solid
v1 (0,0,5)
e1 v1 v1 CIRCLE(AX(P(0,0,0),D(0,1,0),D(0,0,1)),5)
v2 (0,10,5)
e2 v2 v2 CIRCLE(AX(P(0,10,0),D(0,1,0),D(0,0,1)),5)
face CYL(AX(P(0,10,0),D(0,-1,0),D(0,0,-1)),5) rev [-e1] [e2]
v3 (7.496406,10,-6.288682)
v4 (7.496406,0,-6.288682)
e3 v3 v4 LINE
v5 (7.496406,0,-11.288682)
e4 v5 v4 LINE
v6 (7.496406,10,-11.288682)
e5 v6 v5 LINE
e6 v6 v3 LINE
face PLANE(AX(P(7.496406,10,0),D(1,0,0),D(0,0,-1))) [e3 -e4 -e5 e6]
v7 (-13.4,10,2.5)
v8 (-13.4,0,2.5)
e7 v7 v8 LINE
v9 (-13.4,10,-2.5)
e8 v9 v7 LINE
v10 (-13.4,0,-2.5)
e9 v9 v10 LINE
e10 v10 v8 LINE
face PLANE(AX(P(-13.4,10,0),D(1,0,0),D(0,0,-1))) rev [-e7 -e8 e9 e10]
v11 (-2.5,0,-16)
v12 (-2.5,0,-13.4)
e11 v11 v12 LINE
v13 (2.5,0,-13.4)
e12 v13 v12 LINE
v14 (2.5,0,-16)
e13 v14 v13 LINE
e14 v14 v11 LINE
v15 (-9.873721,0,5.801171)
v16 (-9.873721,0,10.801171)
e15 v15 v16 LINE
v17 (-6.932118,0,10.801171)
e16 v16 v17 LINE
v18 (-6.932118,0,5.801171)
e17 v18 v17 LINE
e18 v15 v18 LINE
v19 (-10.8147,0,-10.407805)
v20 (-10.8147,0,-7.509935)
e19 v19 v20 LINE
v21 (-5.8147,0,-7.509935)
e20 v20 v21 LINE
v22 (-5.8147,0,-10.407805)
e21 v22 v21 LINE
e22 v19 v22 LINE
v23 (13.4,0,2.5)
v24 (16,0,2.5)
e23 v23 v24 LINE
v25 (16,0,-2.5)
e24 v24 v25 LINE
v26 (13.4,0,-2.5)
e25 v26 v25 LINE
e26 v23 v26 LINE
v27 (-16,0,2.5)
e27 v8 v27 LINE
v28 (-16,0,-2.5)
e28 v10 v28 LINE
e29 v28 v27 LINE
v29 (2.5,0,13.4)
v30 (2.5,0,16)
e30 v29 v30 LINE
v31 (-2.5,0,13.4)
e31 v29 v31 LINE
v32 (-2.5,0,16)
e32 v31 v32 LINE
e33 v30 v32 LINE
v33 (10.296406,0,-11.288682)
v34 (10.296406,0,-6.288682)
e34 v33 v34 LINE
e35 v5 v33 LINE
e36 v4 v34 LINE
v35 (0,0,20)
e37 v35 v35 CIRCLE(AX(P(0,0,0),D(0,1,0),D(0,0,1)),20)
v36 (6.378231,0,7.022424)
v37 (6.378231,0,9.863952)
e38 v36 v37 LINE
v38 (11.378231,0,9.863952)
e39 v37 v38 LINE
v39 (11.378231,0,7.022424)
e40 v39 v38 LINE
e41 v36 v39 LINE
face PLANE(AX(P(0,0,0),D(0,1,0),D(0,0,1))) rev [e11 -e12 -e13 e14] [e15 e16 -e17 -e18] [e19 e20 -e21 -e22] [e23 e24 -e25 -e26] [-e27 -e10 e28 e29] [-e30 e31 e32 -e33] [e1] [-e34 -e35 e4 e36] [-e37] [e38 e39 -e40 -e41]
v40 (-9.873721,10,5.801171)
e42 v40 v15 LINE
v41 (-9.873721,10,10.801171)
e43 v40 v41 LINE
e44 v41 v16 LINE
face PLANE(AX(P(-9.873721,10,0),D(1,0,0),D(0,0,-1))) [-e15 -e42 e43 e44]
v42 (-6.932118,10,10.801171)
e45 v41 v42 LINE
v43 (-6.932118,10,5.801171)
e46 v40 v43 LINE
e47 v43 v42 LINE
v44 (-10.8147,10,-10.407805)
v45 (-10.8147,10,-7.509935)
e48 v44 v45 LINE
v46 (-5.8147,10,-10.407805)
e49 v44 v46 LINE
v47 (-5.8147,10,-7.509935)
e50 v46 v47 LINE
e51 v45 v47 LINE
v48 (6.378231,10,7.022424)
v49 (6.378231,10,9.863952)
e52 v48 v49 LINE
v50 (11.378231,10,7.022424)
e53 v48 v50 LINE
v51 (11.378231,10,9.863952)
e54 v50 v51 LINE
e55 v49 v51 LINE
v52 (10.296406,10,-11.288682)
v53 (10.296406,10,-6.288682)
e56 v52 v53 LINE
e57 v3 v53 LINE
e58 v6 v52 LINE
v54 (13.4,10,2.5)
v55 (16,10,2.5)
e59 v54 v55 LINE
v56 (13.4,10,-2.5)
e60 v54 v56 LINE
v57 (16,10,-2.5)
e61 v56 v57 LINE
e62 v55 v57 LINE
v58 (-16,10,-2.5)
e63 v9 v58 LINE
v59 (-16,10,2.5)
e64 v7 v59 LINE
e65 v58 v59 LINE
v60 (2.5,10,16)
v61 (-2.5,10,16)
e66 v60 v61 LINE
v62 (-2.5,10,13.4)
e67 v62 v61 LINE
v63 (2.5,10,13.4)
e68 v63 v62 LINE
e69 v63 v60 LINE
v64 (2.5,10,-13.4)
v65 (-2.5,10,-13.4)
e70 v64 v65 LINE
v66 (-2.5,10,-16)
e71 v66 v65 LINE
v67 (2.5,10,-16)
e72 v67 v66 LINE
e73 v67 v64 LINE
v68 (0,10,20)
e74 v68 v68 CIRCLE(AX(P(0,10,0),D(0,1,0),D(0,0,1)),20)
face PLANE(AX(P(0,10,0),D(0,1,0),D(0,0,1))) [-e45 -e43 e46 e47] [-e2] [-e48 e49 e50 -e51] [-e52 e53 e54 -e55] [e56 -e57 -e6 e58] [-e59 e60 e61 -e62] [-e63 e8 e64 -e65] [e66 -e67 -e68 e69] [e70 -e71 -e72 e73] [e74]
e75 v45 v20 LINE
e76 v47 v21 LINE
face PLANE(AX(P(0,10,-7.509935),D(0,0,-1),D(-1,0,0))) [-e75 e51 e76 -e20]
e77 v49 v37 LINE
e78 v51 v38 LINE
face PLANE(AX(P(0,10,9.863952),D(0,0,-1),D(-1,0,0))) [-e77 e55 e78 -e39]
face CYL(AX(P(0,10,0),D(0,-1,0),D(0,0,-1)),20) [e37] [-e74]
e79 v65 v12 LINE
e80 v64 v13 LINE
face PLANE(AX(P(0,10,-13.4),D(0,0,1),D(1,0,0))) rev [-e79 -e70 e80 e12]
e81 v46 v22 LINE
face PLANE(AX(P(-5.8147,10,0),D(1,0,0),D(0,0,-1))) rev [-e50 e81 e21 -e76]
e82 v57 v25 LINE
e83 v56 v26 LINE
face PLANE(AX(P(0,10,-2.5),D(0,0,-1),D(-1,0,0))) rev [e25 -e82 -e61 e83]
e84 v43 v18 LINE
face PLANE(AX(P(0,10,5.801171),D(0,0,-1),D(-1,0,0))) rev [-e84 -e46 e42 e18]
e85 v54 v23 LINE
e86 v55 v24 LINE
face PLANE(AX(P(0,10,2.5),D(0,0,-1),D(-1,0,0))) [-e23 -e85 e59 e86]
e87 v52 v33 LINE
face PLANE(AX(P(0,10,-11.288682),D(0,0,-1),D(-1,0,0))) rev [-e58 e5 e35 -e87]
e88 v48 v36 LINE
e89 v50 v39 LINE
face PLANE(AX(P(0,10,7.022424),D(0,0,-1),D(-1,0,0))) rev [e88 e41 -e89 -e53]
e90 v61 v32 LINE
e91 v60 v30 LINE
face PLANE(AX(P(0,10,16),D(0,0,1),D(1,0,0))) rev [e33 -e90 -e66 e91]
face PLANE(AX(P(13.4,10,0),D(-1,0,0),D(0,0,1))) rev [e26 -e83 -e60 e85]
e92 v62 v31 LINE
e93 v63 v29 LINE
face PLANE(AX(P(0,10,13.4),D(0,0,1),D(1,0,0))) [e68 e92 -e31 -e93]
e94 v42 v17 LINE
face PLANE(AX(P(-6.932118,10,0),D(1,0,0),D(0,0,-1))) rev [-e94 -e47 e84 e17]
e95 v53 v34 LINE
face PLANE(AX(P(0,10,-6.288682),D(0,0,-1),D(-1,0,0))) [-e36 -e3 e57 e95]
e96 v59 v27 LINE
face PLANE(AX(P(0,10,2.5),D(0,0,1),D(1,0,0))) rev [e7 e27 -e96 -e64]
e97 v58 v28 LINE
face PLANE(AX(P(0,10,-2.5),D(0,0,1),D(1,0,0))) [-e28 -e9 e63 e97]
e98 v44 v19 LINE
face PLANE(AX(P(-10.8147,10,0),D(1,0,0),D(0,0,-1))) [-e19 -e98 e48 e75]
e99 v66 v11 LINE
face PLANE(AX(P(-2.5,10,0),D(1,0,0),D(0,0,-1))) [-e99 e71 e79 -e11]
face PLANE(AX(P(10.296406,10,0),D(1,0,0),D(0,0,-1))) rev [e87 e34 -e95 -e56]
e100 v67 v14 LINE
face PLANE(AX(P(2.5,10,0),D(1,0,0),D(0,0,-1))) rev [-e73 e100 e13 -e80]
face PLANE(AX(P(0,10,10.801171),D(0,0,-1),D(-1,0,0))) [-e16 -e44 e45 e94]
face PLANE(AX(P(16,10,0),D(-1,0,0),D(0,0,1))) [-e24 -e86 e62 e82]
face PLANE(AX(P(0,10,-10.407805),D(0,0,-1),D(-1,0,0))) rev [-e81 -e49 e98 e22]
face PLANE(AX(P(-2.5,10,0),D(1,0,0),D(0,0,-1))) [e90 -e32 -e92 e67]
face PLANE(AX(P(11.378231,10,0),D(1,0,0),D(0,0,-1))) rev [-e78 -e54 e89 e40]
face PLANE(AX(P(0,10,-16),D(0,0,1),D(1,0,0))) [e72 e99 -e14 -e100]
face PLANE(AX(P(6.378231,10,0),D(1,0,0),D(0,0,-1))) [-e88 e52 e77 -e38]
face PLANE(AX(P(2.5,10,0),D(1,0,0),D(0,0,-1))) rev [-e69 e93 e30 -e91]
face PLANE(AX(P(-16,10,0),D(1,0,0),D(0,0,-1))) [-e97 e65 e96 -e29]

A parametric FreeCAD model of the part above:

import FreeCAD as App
import Part
import Sketcher

V = App.Vector


def add_polygon(sketch, points):
    """Adds a closed chain of lines whose ends are joined by coincident constraints."""
    first, n = sketch.GeometryCount, len(points)
    for a, b in zip(points, points[1:] + points[:1]):
        sketch.addGeometry(Part.LineSegment(App.Vector(*a, 0), App.Vector(*b, 0)), False)
    for i in range(n):
        sketch.addConstraint(Sketcher.Constraint("Coincident", first + i, 2, first + (i + 1) % n, 1))

doc = App.newDocument("Part")
body = doc.addObject("PartDesign::Body", "Body")

sketch1 = body.newObject("Sketcher::SketchObject", "Sketch")
sketch1.AttachmentSupport = (doc.getObject("XZ_Plane"), [""])
sketch1.MapMode = "FlatFace"
sketch1.addGeometry(Part.Circle(V(0, 0, 0), V(0, 0, 1), 20), False)
add_polygon(sketch1, [(-5.8, -7.5), (-10.8, -7.5), (-10.8, -10.4), (-5.8, -10.4)])
add_polygon(sketch1, [(2.5, -13.4), (-2.5, -13.4), (-2.5, -16), (2.5, -16)])
add_polygon(sketch1, [(-13.4, 2.5), (-16, 2.5), (-16, -2.5), (-13.4, -2.5)])
add_polygon(sketch1, [(-6.9, 10.8), (-9.9, 10.8), (-9.9, 5.8), (-6.9, 5.8)])
sketch1.addGeometry(Part.Circle(V(0, 0, 0), V(0, 0, 1), 5), False)
add_polygon(sketch1, [(10.3, -6.3), (7.5, -6.3), (7.5, -11.3), (10.3, -11.3)])
add_polygon(sketch1, [(16, 2.5), (13.4, 2.5), (13.4, -2.5), (16, -2.5)])
add_polygon(sketch1, [(2.5, 16), (-2.5, 16), (-2.5, 13.4), (2.5, 13.4)])
add_polygon(sketch1, [(11.4, 9.9), (6.4, 9.9), (6.4, 7), (11.4, 7)])
sketch1.addConstraint([
    Sketcher.Constraint("Horizontal", 1),
    Sketcher.Constraint("Vertical", 2),
    Sketcher.Constraint("Horizontal", 3),
    Sketcher.Constraint("Vertical", 4),
    Sketcher.Constraint("Horizontal", 5),
    Sketcher.Constraint("Vertical", 6),
    Sketcher.Constraint("Horizontal", 7),
    Sketcher.Constraint("Vertical", 8),
    Sketcher.Constraint("Horizontal", 9),
    Sketcher.Constraint("Vertical", 10),
    Sketcher.Constraint("Horizontal", 11),
    Sketcher.Constraint("Vertical", 12),
    Sketcher.Constraint("Horizontal", 13),
    Sketcher.Constraint("Vertical", 14),
    Sketcher.Constraint("Horizontal", 15),
    Sketcher.Constraint("Vertical", 16),
    Sketcher.Constraint("Horizontal", 18),
    Sketcher.Constraint("Vertical", 19),
    Sketcher.Constraint("Horizontal", 20),
    Sketcher.Constraint("Vertical", 21),
    Sketcher.Constraint("Horizontal", 22),
    Sketcher.Constraint("Vertical", 23),
    Sketcher.Constraint("Horizontal", 24),
    Sketcher.Constraint("Vertical", 25),
    Sketcher.Constraint("Horizontal", 26),
    Sketcher.Constraint("Vertical", 27),
    Sketcher.Constraint("Horizontal", 28),
    Sketcher.Constraint("Vertical", 29),
    Sketcher.Constraint("Horizontal", 30),
    Sketcher.Constraint("Vertical", 31),
    Sketcher.Constraint("Horizontal", 32),
    Sketcher.Constraint("Vertical", 33),
    Sketcher.Constraint("Coincident", 0, 3, -1, 1),
    Sketcher.Constraint("Coincident", 17, 3, -1, 1),
    Sketcher.Constraint("Symmetric", 11, 2, 22, 2, -1, 1),
    Sketcher.Constraint("Symmetric", 9, 2, 24, 2, -1, 1),
    Sketcher.Constraint("Symmetric", 7, 2, 26, 2, -1, 1),
    Sketcher.Constraint("Symmetric", 5, 2, 28, 2, -1, 1),
    Sketcher.Constraint("Horizontal", 12, 2, 22, 2),
    Sketcher.Constraint("Vertical", 6, 2, 26, 2),
    Sketcher.Constraint("Equal", 3, 5),
    Sketcher.Constraint("Equal", 28, 30),
    Sketcher.Constraint("Equal", 24, 6),
    Sketcher.Constraint("Equal", 32, 10),
    Sketcher.Constraint("Equal", 12, 14),
    Sketcher.Constraint("Equal", 16, 19),
    Sketcher.Constraint("Diameter", 0, 40.0),
    Sketcher.Constraint("Diameter", 17, 10.0),
    Sketcher.Constraint("DistanceX", 1, 2, 1, 1, 5.0),
    Sketcher.Constraint("DistanceX", 9, 2, 9, 1, 2.6),
    Sketcher.Constraint("DistanceX", 18, 2, 18, 1, 2.8),
    Sketcher.Constraint("DistanceY", 6, 2, -1, 1, 16.0),
    Sketcher.Constraint("DistanceX", 9, 2, -1, 1, 16.0),
    Sketcher.Constraint("DistanceY", 2, 2, 2, 1, 2.897871),
    Sketcher.Constraint("DistanceY", 31, 2, 31, 1, 2.841528),
    Sketcher.Constraint("DistanceX", 1, 2, -1, 1, 10.8147),
    Sketcher.Constraint("DistanceX", 13, 2, 13, 1, 2.941604),
    Sketcher.Constraint("DistanceX", 13, 2, -1, 1, 9.873721),
    Sketcher.Constraint("DistanceY", -1, 1, 13, 2, 10.801171),
    Sketcher.Constraint("DistanceX", -1, 1, 30, 2, 6.378231),
    Sketcher.Constraint("DistanceY", -1, 1, 30, 2, 9.863952),
    Sketcher.Constraint("DistanceY", 1, 2, -1, 1, 7.509935),
    Sketcher.Constraint("DistanceX", -1, 1, 18, 2, 7.496406),
    Sketcher.Constraint("DistanceY", 18, 2, -1, 1, 6.288682),
])
pad1 = body.newObject("PartDesign::Pad", "Pad")
pad1.Profile = sketch1
pad1.Length = 10
pad1.Reversed = True

doc.recompute()
